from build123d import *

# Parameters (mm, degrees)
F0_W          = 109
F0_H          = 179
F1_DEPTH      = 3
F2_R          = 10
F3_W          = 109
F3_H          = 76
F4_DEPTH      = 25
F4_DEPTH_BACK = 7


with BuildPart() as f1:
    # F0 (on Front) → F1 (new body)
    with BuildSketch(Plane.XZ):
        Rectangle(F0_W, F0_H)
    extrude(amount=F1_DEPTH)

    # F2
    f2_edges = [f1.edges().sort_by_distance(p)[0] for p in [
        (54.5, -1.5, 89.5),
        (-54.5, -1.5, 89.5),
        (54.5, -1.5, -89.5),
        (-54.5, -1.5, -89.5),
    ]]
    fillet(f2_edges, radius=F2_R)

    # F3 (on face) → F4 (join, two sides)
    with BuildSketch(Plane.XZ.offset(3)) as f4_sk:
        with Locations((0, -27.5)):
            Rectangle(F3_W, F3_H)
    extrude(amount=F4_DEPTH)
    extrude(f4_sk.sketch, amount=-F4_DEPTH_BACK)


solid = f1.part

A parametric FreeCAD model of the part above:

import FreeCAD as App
import Part
import Sketcher
from FreeCAD import Vector


def edges_at(feature, points):
    """Names of the edges that pass closest to the given points."""
    edges = feature.Shape.Edges
    near = lambda p: min(range(len(edges)), key=lambda i: edges[i].distToShape(Part.Vertex(*p))[0])
    return sorted({f"Edge{near(p) + 1}" for p in points})


def add_polygon(sketch, points):
    """Adds a closed chain of lines whose ends are joined by coincident constraints."""
    first, n = sketch.GeometryCount, len(points)
    for a, b in zip(points, points[1:] + points[:1]):
        sketch.addGeometry(Part.LineSegment(App.Vector(*a, 0), App.Vector(*b, 0)), False)
    for i in range(n):
        sketch.addConstraint(Sketcher.Constraint("Coincident", first + i, 2, first + (i + 1) % n, 1))

doc = App.newDocument("Part")
params = doc.addObject("Spreadsheet::Sheet", "Params")
for row, (alias, value) in enumerate([
    ("sketch1_width", "109 mm"),
    ("sketch1_height", "179 mm"),
    ("pad1_length", "3 mm"),
    ("fillet_radius", "10 mm"),
    ("sketch2_width", "109 mm"),
    ("sketch2_height", "76 mm"),
    ("pad2_length", "25 mm"),
    ("pad2_length2", "7 mm"),
], start=1):
    params.set(f"A{row}", alias)
    params.set(f"B{row}", "=" + value)
    params.setAlias(f"B{row}", alias)

body = doc.addObject("PartDesign::Body", "Body")

# Sketch on XZ plane
sketch1 = body.newObject("Sketcher::SketchObject", "Sketch")
sketch1.AttachmentSupport = (doc.getObject("XZ_Plane"), [""])
sketch1.MapMode = "FlatFace"
add_polygon(sketch1, [(-54.5, 89.5), (-54.5, -89.5), (54.5, -89.5), (54.5, 89.5)])  # lines 0-3
sketch1.addConstraint([
    Sketcher.Constraint("Vertical", 0),
    Sketcher.Constraint("Horizontal", 1),
    Sketcher.Constraint("Vertical", 2),
    Sketcher.Constraint("Horizontal", 3),
    Sketcher.Constraint("Symmetric", 0, 2, 2, 2, -1, 1),
    Sketcher.Constraint("DistanceX", 1, 1, 1, 2, 109.0),
    Sketcher.Constraint("DistanceY", 0, 2, 0, 1, 179.0),
])
sketch1.setExpression("Constraints[9]", "Params.sketch1_width")
sketch1.setExpression("Constraints[10]", "Params.sketch1_height")
pad1 = body.newObject("PartDesign::Pad", "Pad")
pad1.Profile = sketch1
pad1.setExpression("Length", "Params.pad1_length")
doc.recompute()

fillet = body.newObject("PartDesign::Fillet", "Fillet")
fillet.Base = (pad1, edges_at(pad1, [
    (54.5, -1.5, 89.5),
    (-54.5, -1.5, 89.5),
    (54.5, -1.5, -89.5),
    (-54.5, -1.5, -89.5),
]))
fillet.setExpression("Radius", "Params.fillet_radius")

# Sketch on XZ plane
sketch2 = body.newObject("Sketcher::SketchObject", "Sketch001")
sketch2.AttachmentSupport = (doc.getObject("XZ_Plane"), [""])
sketch2.MapMode = "FlatFace"
sketch2.AttachmentOffset = App.Placement(Vector(0, 0, 3), App.Rotation())
add_polygon(sketch2, [(-54.5, 10.5), (-54.5, -65.5), (54.5, -65.5), (54.5, 10.5)])  # lines 0-3
sketch2.addConstraint([
    Sketcher.Constraint("Vertical", 0),
    Sketcher.Constraint("Horizontal", 1),
    Sketcher.Constraint("Vertical", 2),
    Sketcher.Constraint("Horizontal", 3),
    Sketcher.Constraint("DistanceX", 1, 1, 1, 2, 109.0),
    Sketcher.Constraint("DistanceY", 0, 2, 0, 1, 76.0),
    Sketcher.Constraint("DistanceX", 0, 2, -1, 1, 54.5),
    Sketcher.Constraint("DistanceY", 0, 2, -1, 1, 65.5),
])
sketch2.setExpression("Constraints[8]", "Params.sketch2_width")
sketch2.setExpression("Constraints[9]", "Params.sketch2_height")
pad2 = body.newObject("PartDesign::Pad", "Pad001")
pad2.Profile = sketch2
pad2.Type = "TwoLengths"
pad2.setExpression("Length", "Params.pad2_length")
pad2.setExpression("Length2", "Params.pad2_length2")

doc.recompute()
